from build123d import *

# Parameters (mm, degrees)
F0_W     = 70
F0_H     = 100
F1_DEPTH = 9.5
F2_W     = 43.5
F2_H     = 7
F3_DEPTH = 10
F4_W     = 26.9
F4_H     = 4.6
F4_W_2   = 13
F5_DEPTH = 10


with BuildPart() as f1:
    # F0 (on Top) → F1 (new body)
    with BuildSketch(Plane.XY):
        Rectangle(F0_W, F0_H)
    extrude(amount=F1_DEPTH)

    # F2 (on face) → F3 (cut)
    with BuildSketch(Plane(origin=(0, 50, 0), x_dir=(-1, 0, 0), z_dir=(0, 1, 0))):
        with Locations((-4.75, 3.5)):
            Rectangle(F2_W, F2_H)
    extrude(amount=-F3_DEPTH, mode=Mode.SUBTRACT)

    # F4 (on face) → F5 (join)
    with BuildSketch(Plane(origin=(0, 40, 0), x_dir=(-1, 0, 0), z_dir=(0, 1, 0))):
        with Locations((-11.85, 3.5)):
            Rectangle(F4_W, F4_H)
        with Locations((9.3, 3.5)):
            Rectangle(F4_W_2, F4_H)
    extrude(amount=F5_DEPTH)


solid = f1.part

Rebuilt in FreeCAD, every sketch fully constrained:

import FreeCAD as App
import Part
import Sketcher
from FreeCAD import Vector

doc = App.newDocument("Part")
params = doc.addObject("Spreadsheet::Sheet", "Params")
for row, (alias, value) in enumerate([
    ("sketch1_width", "70 mm"),
    ("sketch1_height", "100 mm"),
    ("pad1_length", "9.5 mm"),
    ("sketch2_height", "7 mm"),
    ("sketch2_width", "43.5 mm"),
    ("pocket1_length", "10 mm"),
    ("sketch3_width", "13 mm"),
    ("sketch3_width2", "26.9 mm"),
    ("sketch3_height", "4.6 mm"),
    ("pad2_length", "10 mm"),
], start=1):
    params.set(f"A{row}", alias)
    params.set(f"B{row}", "=" + value)
    params.setAlias(f"B{row}", alias)

body = doc.addObject("PartDesign::Body", "Body")

sketch1 = doc.addObject("Sketcher::SketchObject", "Sketch")
body.addObject(sketch1)
sketch1.AttachmentSupport = (doc.XY_Plane, [""])
sketch1.MapMode = "FlatFace"
sketch1.addGeometry([
    Part.LineSegment(Vector(-35, 50, 0), Vector(-35, -50, 0)),
    Part.LineSegment(Vector(-35, -50, 0), Vector(35, -50, 0)),
    Part.LineSegment(Vector(35, -50, 0), Vector(35, 50, 0)),
    Part.LineSegment(Vector(35, 50, 0), Vector(-35, 50, 0)),
], False)
sketch1.addConstraint([
    Sketcher.Constraint("Coincident", 0, 2, 1, 1),
    Sketcher.Constraint("Coincident", 1, 2, 2, 1),
    Sketcher.Constraint("Coincident", 2, 2, 3, 1),
    Sketcher.Constraint("Coincident", 3, 2, 0, 1),
    Sketcher.Constraint("Vertical", 0),
    Sketcher.Constraint("Horizontal", 1),
    Sketcher.Constraint("Vertical", 2),
    Sketcher.Constraint("Horizontal", 3),
    Sketcher.Constraint("Symmetric", 0, 2, 2, 2, -1, 1),
    Sketcher.Constraint("DistanceX", 1, 1, 1, 2, 70.0),
    Sketcher.Constraint("DistanceY", 0, 2, 0, 1, 100.0),
])
sketch1.setExpression("Constraints[9]", "Params.sketch1_width")
sketch1.setExpression("Constraints[10]", "Params.sketch1_height")
pad1 = doc.addObject("PartDesign::Pad", "Pad")
body.addObject(pad1)
pad1.Profile = sketch1
pad1.setExpression("Length", "Params.pad1_length")

sketch2 = doc.addObject("Sketcher::SketchObject", "Sketch001")
body.addObject(sketch2)
sketch2.AttachmentSupport = (doc.XZ_Plane, [""])
sketch2.MapMode = "FlatFace"
sketch2.AttachmentOffset = App.Placement(Vector(0, 0, -50), App.Rotation())
sketch2.addGeometry([
    Part.LineSegment(Vector(26, 7, 0), Vector(26, 0, 0)),
    Part.LineSegment(Vector(26, 0, 0), Vector(-17, 0, 0)),
    Part.LineSegment(Vector(-17, 0, 0), Vector(-17, 7, 0)),
    Part.LineSegment(Vector(-17, 7, 0), Vector(26, 7, 0)),
], False)
sketch2.addConstraint([
    Sketcher.Constraint("Coincident", 0, 2, 1, 1),
    Sketcher.Constraint("Coincident", 1, 2, 2, 1),
    Sketcher.Constraint("Coincident", 2, 2, 3, 1),
    Sketcher.Constraint("Coincident", 3, 2, 0, 1),
    Sketcher.Constraint("Vertical", 0),
    Sketcher.Constraint("Horizontal", 1),
    Sketcher.Constraint("Vertical", 2),
    Sketcher.Constraint("Horizontal", 3),
    Sketcher.Constraint("PointOnObject", 0, 2, -1),
    Sketcher.Constraint("DistanceY", 0, 2, 0, 1, 7.0),
    Sketcher.Constraint("DistanceX", 1, 2, 1, 1, 43.5),
    Sketcher.Constraint("DistanceX", 1, 2, -1, 1, 17.0),
])
sketch2.setExpression("Constraints[9]", "Params.sketch2_height")
sketch2.setExpression("Constraints[10]", "Params.sketch2_width")
pocket1 = doc.addObject("PartDesign::Pocket", "Pocket")
body.addObject(pocket1)
pocket1.Profile = sketch2
pocket1.setExpression("Length", "Params.pocket1_length")
pocket1.Reversed = True

sketch3 = doc.addObject("Sketcher::SketchObject", "Sketch002")
body.addObject(sketch3)
sketch3.AttachmentSupport = (doc.XZ_Plane, [""])
sketch3.MapMode = "FlatFace"
sketch3.AttachmentOffset = App.Placement(Vector(0, 0, -40), App.Rotation())
sketch3.addGeometry([
    Part.LineSegment(Vector(25.3, 5.8, 0), Vector(25.3, 1.2, 0)),
    Part.LineSegment(Vector(25.3, 1.2, 0), Vector(-1.6, 1.2, 0)),
    Part.LineSegment(Vector(-1.6, 1.2, 0), Vector(-1.6, 5.8, 0)),
    Part.LineSegment(Vector(-1.6, 5.8, 0), Vector(25.3, 5.8, 0)),
    Part.LineSegment(Vector(-2.8, 5.8, 0), Vector(-2.8, 1.2, 0)),
    Part.LineSegment(Vector(-2.8, 1.2, 0), Vector(-15.8, 1.2, 0)),
    Part.LineSegment(Vector(-15.8, 1.2, 0), Vector(-15.8, 5.8, 0)),
    Part.LineSegment(Vector(-15.8, 5.8, 0), Vector(-2.8, 5.8, 0)),
], False)
sketch3.addConstraint([
    Sketcher.Constraint("Coincident", 0, 2, 1, 1),
    Sketcher.Constraint("Coincident", 1, 2, 2, 1),
    Sketcher.Constraint("Coincident", 2, 2, 3, 1),
    Sketcher.Constraint("Coincident", 3, 2, 0, 1),
    Sketcher.Constraint("Coincident", 4, 2, 5, 1),
    Sketcher.Constraint("Coincident", 5, 2, 6, 1),
    Sketcher.Constraint("Coincident", 6, 2, 7, 1),
    Sketcher.Constraint("Coincident", 7, 2, 4, 1),
    Sketcher.Constraint("Vertical", 0),
    Sketcher.Constraint("Horizontal", 1),
    Sketcher.Constraint("Vertical", 2),
    Sketcher.Constraint("Horizontal", 3),
    Sketcher.Constraint("Vertical", 4),
    Sketcher.Constraint("Horizontal", 5),
    Sketcher.Constraint("Vertical", 6),
    Sketcher.Constraint("Horizontal", 7),
    Sketcher.Constraint("Horizontal", 1, 2, 4, 2),
    Sketcher.Constraint("Horizontal", 3, 2, 6, 2),
    Sketcher.Constraint("DistanceX", 5, 2, 5, 1, 13.0),
    Sketcher.Constraint("DistanceX", 1, 2, 1, 1, 26.9),
    Sketcher.Constraint("DistanceY", 0, 2, 0, 1, 4.6),
    Sketcher.Constraint("DistanceX", -1, 1, 0, 2, 25.3),
    Sketcher.Constraint("DistanceY", -1, 1, 0, 2, 1.2),
    Sketcher.Constraint("DistanceX", 4, 2, -1, 1, 2.8),
])
sketch3.setExpression("Constraints[18]", "Params.sketch3_width")
sketch3.setExpression("Constraints[19]", "Params.sketch3_width2")
sketch3.setExpression("Constraints[20]", "Params.sketch3_height")
pad2 = doc.addObject("PartDesign::Pad", "Pad001")
body.addObject(pad2)
pad2.Profile = sketch3
pad2.setExpression("Length", "Params.pad2_length")
pad2.Reversed = True

doc.recompute()
